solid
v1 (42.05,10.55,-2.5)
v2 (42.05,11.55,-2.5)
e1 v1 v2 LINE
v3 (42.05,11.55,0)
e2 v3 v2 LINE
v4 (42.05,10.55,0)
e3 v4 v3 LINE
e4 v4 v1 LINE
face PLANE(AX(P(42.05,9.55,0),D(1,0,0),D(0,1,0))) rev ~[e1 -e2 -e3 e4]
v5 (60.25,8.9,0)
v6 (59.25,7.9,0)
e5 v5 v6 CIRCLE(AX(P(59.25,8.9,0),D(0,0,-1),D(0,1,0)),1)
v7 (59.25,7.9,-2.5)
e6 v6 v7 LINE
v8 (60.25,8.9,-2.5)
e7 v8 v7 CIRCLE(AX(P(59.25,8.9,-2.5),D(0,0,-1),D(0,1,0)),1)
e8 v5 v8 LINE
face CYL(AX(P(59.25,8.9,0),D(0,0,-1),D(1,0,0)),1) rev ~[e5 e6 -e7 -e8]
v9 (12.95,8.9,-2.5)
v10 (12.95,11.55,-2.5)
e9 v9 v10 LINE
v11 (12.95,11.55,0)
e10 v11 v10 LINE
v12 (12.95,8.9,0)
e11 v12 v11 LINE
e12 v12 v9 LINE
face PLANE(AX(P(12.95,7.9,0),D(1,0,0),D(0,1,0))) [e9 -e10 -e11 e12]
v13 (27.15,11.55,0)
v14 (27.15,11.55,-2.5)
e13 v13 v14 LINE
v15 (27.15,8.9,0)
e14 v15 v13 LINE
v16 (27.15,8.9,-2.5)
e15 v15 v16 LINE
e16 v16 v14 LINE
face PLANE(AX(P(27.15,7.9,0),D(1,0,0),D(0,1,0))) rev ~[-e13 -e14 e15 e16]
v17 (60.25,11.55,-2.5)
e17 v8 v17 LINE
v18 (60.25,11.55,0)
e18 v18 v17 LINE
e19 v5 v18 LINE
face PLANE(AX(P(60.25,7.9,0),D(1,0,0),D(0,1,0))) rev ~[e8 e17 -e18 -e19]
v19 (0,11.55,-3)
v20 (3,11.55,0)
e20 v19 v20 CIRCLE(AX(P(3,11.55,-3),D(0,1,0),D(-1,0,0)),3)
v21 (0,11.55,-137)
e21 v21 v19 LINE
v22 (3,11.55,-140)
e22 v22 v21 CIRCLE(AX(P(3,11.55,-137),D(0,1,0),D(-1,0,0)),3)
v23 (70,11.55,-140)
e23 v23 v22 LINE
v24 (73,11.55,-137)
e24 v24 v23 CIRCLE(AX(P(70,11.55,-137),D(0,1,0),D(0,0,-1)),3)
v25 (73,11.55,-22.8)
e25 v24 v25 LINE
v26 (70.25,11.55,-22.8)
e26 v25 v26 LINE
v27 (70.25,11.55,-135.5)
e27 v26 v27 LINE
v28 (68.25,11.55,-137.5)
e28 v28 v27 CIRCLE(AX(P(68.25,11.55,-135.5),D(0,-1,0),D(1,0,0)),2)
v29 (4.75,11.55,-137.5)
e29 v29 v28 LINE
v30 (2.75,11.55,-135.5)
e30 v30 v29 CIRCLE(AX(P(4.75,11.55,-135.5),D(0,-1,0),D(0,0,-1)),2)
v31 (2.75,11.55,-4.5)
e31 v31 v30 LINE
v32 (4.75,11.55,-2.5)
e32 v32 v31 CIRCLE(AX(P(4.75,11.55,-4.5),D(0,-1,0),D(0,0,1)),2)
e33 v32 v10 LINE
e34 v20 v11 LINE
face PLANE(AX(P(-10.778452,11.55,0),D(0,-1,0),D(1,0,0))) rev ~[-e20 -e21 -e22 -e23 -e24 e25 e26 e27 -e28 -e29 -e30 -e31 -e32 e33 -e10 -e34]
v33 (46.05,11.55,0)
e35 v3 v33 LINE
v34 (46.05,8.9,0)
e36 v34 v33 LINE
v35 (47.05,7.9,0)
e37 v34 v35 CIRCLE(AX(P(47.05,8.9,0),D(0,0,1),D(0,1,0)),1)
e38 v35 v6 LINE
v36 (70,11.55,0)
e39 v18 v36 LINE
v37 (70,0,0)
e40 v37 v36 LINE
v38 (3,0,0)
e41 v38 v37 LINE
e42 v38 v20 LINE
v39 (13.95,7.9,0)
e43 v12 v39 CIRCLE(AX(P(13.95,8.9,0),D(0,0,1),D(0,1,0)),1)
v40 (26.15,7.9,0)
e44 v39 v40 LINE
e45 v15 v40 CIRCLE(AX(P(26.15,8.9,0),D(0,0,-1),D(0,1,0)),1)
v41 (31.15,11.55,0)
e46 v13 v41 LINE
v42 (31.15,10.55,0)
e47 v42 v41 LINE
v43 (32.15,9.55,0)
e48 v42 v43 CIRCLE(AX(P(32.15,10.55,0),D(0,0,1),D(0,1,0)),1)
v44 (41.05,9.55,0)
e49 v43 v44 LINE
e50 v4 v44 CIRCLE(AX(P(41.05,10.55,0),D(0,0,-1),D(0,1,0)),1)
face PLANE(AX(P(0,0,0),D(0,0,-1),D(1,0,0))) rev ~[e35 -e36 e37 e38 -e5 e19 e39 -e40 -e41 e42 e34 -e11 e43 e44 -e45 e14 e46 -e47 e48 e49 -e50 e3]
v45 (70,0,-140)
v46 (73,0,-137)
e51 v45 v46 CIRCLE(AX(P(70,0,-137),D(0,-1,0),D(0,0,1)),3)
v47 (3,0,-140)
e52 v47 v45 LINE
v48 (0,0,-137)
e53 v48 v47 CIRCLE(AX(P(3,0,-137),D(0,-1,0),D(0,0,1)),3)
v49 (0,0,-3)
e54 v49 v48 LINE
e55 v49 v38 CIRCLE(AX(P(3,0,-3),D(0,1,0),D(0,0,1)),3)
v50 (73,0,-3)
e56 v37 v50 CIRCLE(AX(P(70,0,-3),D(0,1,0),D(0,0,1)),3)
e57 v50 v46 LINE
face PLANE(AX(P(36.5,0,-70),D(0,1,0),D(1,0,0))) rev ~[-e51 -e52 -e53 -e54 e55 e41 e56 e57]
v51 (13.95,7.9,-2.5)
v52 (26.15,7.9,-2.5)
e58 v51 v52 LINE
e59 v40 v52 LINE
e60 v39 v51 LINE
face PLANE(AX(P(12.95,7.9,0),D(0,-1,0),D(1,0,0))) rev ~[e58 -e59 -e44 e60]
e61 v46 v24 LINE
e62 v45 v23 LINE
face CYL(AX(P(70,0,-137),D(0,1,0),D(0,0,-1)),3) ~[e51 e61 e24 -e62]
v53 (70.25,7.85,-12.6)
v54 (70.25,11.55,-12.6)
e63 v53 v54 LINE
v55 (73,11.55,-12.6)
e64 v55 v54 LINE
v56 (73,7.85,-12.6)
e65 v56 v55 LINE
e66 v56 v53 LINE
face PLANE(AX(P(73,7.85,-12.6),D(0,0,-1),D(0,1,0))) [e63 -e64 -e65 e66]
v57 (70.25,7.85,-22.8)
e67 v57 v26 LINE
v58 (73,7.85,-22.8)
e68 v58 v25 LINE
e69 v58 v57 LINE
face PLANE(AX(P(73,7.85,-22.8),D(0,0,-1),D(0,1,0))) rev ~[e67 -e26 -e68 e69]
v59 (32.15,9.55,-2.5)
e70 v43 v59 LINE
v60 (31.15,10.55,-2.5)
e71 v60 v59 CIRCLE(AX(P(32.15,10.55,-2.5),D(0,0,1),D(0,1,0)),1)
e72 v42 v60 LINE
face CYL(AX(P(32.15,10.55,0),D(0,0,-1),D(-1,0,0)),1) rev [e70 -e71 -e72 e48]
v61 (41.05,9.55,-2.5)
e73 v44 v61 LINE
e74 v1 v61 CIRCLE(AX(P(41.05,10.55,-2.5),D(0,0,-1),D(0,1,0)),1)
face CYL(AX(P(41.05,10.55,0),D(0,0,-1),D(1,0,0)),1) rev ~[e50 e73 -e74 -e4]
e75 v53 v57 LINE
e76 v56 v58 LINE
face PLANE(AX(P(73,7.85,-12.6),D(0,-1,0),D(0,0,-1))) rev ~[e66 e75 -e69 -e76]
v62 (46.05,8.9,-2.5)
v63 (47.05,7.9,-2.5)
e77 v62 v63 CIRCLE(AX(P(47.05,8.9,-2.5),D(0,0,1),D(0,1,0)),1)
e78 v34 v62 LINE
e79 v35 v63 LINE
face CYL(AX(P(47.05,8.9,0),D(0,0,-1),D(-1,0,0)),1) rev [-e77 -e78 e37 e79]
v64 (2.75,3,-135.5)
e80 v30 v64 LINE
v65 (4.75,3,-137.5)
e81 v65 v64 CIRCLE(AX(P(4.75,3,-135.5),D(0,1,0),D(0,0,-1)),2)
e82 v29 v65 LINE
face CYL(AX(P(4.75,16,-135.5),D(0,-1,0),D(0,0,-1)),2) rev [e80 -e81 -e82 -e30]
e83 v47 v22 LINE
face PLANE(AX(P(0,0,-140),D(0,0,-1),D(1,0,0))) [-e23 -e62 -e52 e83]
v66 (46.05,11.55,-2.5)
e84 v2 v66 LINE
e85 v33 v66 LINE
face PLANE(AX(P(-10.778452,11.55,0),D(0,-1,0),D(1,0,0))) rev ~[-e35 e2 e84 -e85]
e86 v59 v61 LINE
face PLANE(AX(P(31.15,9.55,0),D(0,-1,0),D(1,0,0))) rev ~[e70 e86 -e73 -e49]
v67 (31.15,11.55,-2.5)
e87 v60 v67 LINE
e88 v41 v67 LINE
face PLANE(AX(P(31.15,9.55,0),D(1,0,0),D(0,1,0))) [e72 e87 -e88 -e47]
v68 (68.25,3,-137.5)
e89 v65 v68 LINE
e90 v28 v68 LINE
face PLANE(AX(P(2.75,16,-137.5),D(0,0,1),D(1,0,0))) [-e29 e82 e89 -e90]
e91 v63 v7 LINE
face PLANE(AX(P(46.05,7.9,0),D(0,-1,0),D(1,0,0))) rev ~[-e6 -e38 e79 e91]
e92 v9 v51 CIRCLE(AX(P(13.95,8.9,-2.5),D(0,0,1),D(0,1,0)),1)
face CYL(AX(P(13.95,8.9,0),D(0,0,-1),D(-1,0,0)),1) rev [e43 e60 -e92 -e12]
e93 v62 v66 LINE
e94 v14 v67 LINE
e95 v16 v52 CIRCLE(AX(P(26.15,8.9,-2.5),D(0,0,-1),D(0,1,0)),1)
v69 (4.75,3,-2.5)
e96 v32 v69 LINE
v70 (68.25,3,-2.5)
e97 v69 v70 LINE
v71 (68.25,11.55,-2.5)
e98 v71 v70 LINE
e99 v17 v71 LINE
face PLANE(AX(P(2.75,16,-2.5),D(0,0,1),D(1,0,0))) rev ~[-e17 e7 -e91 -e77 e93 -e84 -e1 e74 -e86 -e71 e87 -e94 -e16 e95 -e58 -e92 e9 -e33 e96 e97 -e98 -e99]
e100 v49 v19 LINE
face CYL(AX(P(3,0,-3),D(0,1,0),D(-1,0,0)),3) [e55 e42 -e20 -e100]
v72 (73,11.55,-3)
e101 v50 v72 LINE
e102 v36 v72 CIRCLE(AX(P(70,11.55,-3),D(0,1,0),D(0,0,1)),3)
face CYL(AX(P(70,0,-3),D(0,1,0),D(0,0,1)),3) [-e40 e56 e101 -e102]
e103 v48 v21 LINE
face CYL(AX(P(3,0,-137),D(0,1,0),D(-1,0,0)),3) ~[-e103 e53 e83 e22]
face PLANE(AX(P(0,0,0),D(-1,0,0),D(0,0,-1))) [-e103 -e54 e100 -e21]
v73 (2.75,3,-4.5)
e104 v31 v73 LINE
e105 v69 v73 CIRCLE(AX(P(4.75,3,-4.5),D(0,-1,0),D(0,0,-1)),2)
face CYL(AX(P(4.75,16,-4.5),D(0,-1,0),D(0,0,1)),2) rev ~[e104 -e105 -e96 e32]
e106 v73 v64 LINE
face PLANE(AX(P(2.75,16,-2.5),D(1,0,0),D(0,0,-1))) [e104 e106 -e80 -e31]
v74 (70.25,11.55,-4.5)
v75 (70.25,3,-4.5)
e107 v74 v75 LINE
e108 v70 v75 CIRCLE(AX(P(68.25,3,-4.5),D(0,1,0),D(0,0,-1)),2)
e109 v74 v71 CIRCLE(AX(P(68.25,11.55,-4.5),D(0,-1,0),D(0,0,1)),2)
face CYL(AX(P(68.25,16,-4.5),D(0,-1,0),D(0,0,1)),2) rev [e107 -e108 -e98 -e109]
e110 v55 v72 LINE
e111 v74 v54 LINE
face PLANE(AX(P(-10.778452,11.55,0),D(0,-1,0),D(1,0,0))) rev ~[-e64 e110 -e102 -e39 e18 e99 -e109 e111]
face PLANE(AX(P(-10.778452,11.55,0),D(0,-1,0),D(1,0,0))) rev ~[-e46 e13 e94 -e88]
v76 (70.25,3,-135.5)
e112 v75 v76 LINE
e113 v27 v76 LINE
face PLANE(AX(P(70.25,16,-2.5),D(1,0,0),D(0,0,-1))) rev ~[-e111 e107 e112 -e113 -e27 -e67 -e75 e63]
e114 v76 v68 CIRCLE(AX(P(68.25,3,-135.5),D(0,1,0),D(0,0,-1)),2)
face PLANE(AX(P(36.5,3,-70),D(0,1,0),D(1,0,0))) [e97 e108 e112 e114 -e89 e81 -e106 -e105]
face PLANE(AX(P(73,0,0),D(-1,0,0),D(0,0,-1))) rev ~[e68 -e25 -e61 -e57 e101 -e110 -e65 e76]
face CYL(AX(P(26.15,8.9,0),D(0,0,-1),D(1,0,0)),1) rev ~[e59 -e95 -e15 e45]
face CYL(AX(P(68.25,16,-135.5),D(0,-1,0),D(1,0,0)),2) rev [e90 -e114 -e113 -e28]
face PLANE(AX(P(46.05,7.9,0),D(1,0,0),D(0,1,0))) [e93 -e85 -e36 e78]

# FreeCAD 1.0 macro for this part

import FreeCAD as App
import Part
import Sketcher


def edges_at(feature, points):
    """Names of the edges that pass closest to the given points."""
    edges = feature.Shape.Edges
    near = lambda p: min(range(len(edges)), key=lambda i: edges[i].distToShape(Part.Vertex(*p))[0])
    return sorted({f"Edge{near(p) + 1}" for p in points})

doc = App.newDocument("Part")
body = doc.addObject("PartDesign::Body", "Body")

# Sketch on XZ plane
sketch1 = doc.addObject("Sketcher::SketchObject", "Sketch")
body.addObject(sketch1)
sketch1.AttachmentSupport = (doc.XZ_Plane, [""])
sketch1.MapMode = "FlatFace"
sketch1.addGeometry(Part.LineSegment(App.Vector(0, -140, 0), App.Vector(0, 0, 0)), False)
sketch1.addGeometry(Part.LineSegment(App.Vector(0, 0, 0), App.Vector(73, 0, 0)), False)
sketch1.addGeometry(Part.LineSegment(App.Vector(73, 0, 0), App.Vector(73, -140, 0)), False)
sketch1.addGeometry(Part.LineSegment(App.Vector(73, -140, 0), App.Vector(0, -140, 0)), False)
sketch1.addConstraint(Sketcher.Constraint("Coincident", 0, 2, 1, 1))
sketch1.addConstraint(Sketcher.Constraint("Coincident", 1, 2, 2, 1))
sketch1.addConstraint(Sketcher.Constraint("Coincident", 2, 2, 3, 1))
sketch1.addConstraint(Sketcher.Constraint("Coincident", 3, 2, 0, 1))
sketch1.addConstraint(Sketcher.Constraint("Vertical", 0))
sketch1.addConstraint(Sketcher.Constraint("Horizontal", 1))
sketch1.addConstraint(Sketcher.Constraint("Vertical", 2))
sketch1.addConstraint(Sketcher.Constraint("Horizontal", 3))
sketch1.addConstraint(Sketcher.Constraint("Coincident", 0, 2, -1, 1))
sketch1.addConstraint(Sketcher.Constraint("DistanceX", 1, 1, 1, 2, 73.0))
sketch1.addConstraint(Sketcher.Constraint("DistanceY", 0, 1, 0, 2, 140.0))
pad1 = doc.addObject("PartDesign::Pad", "Pad")
body.addObject(pad1)
pad1.Profile = sketch1
pad1.Length = 16
pad1.Reversed = True

# Sketch on XZ plane
sketch2 = doc.addObject("Sketcher::SketchObject", "Sketch001")
body.addObject(sketch2)
sketch2.AttachmentSupport = (doc.XZ_Plane, [""])
sketch2.MapMode = "FlatFace"
sketch2.AttachmentOffset = App.Placement(App.Vector(0, 0, -16), App.Rotation())
sketch2.addGeometry(Part.LineSegment(App.Vector(3, -138, 0), App.Vector(3, -2, 0)), False)
sketch2.addGeometry(Part.LineSegment(App.Vector(3, -2, 0), App.Vector(70, -2, 0)), False)
sketch2.addGeometry(Part.LineSegment(App.Vector(70, -2, 0), App.Vector(70, -138, 0)), False)
sketch2.addGeometry(Part.LineSegment(App.Vector(70, -138, 0), App.Vector(3, -138, 0)), False)
sketch2.addConstraint(Sketcher.Constraint("Coincident", 0, 2, 1, 1))
sketch2.addConstraint(Sketcher.Constraint("Coincident", 1, 2, 2, 1))
sketch2.addConstraint(Sketcher.Constraint("Coincident", 2, 2, 3, 1))
sketch2.addConstraint(Sketcher.Constraint("Coincident", 3, 2, 0, 1))
sketch2.addConstraint(Sketcher.Constraint("Vertical", 0))
sketch2.addConstraint(Sketcher.Constraint("Horizontal", 1))
sketch2.addConstraint(Sketcher.Constraint("Vertical", 2))
sketch2.addConstraint(Sketcher.Constraint("Horizontal", 3))
sketch2.addConstraint(Sketcher.Constraint("DistanceY", 0, 1, 0, 2, 135.0))
sketch2.addConstraint(Sketcher.Constraint("DistanceX", 1, 1, 1, 2, 67.5))
sketch2.addConstraint(Sketcher.Constraint("DistanceY", 0, 2, -1, 1, 2.5))
sketch2.addConstraint(Sketcher.Constraint("DistanceX", -1, 1, 0, 2, 2.75))
pocket1 = doc.addObject("PartDesign::Pocket", "Pocket")
body.addObject(pocket1)
pocket1.Profile = sketch2
pocket1.Length = 13
pocket1.Reversed = True

# Sketch on XY plane
sketch3 = doc.addObject("Sketcher::SketchObject", "Sketch002")
body.addObject(sketch3)
sketch3.AttachmentSupport = (doc.XY_Plane, [""])
sketch3.MapMode = "FlatFace"
sketch3.addGeometry(Part.LineSegment(App.Vector(12.9, 14.3, 0), App.Vector(12.9, 7.9, 0)), False)
sketch3.addGeometry(Part.LineSegment(App.Vector(12.9, 7.9, 0), App.Vector(27.1, 7.9, 0)), False)
sketch3.addGeometry(Part.LineSegment(App.Vector(27.1, 7.9, 0), App.Vector(27.1, 14.3, 0)), False)
sketch3.addGeometry(Part.LineSegment(App.Vector(27.1, 14.3, 0), App.Vector(12.9, 14.3, 0)), False)
sketch3.addGeometry(Part.LineSegment(App.Vector(31.1, 14.3, 0), App.Vector(31.1, 9.6, 0)), False)
sketch3.addGeometry(Part.LineSegment(App.Vector(31.1, 9.6, 0), App.Vector(42, 9.6, 0)), False)
sketch3.addGeometry(Part.LineSegment(App.Vector(42, 9.6, 0), App.Vector(42, 14.3, 0)), False)
sketch3.addGeometry(Part.LineSegment(App.Vector(42, 14.3, 0), App.Vector(31.1, 14.3, 0)), False)
sketch3.addGeometry(Part.LineSegment(App.Vector(46, 14.3, 0), App.Vector(46, 7.9, 0)), False)
sketch3.addGeometry(Part.LineSegment(App.Vector(46, 7.9, 0), App.Vector(60.2, 7.9, 0)), False)
sketch3.addGeometry(Part.LineSegment(App.Vector(60.2, 7.9, 0), App.Vector(60.2, 14.3, 0)), False)
sketch3.addGeometry(Part.LineSegment(App.Vector(60.2, 14.3, 0), App.Vector(46, 14.3, 0)), False)
sketch3.addConstraint(Sketcher.Constraint("Coincident", 0, 2, 1, 1))
sketch3.addConstraint(Sketcher.Constraint("Coincident", 1, 2, 2, 1))
sketch3.addConstraint(Sketcher.Constraint("Coincident", 2, 2, 3, 1))
sketch3.addConstraint(Sketcher.Constraint("Coincident", 3, 2, 0, 1))
sketch3.addConstraint(Sketcher.Constraint("Coincident", 4, 2, 5, 1))
sketch3.addConstraint(Sketcher.Constraint("Coincident", 5, 2, 6, 1))
sketch3.addConstraint(Sketcher.Constraint("Coincident", 6, 2, 7, 1))
sketch3.addConstraint(Sketcher.Constraint("Coincident", 7, 2, 4, 1))
sketch3.addConstraint(Sketcher.Constraint("Coincident", 8, 2, 9, 1))
sketch3.addConstraint(Sketcher.Constraint("Coincident", 9, 2, 10, 1))
sketch3.addConstraint(Sketcher.Constraint("Coincident", 10, 2, 11, 1))
sketch3.addConstraint(Sketcher.Constraint("Coincident", 11, 2, 8, 1))
sketch3.addConstraint(Sketcher.Constraint("Vertical", 0))
sketch3.addConstraint(Sketcher.Constraint("Horizontal", 1))
sketch3.addConstraint(Sketcher.Constraint("Vertical", 2))
sketch3.addConstraint(Sketcher.Constraint("Horizontal", 3))
sketch3.addConstraint(Sketcher.Constraint("Vertical", 4))
sketch3.addConstraint(Sketcher.Constraint("Horizontal", 5))
sketch3.addConstraint(Sketcher.Constraint("Vertical", 6))
sketch3.addConstraint(Sketcher.Constraint("Horizontal", 7))
sketch3.addConstraint(Sketcher.Constraint("Vertical", 8))
sketch3.addConstraint(Sketcher.Constraint("Horizontal", 9))
sketch3.addConstraint(Sketcher.Constraint("Vertical", 10))
sketch3.addConstraint(Sketcher.Constraint("Horizontal", 11))
sketch3.addConstraint(Sketcher.Constraint("Horizontal", 3, 2, 6, 2))
sketch3.addConstraint(Sketcher.Constraint("Horizontal", 1, 2, 8, 2))
sketch3.addConstraint(Sketcher.Constraint("Horizontal", 7, 2, 10, 2))
sketch3.addConstraint(Sketcher.Constraint("Equal", 3, 9))
sketch3.addConstraint(Sketcher.Constraint("DistanceX", 1, 1, 1, 2, 14.2))
sketch3.addConstraint(Sketcher.Constraint("DistanceX", 5, 1, 5, 2, 10.9))
sketch3.addConstraint(Sketcher.Constraint("DistanceY", 4, 2, 4, 1, 4.8))
sketch3.addConstraint(Sketcher.Constraint("DistanceX", 1, 2, 4, 2, 4.0))
sketch3.addConstraint(Sketcher.Constraint("DistanceX", 5, 2, 8, 2, 4.0))
sketch3.addConstraint(Sketcher.Constraint("DistanceY", 0, 2, 0, 1, 6.45))
sketch3.addConstraint(Sketcher.Constraint("DistanceY", -1, 1, 0, 2, 7.9))
sketch3.addConstraint(Sketcher.Constraint("DistanceX", -1, 1, 0, 2, 12.95))
pocket2 = doc.addObject("PartDesign::Pocket", "Pocket001")
body.addObject(pocket2)
pocket2.Profile = sketch3
pocket2.Length = 2.5
doc.recompute()

fillet = doc.addObject("PartDesign::Fillet", "Fillet")
body.addObject(fillet)
fillet.Base = (pocket2, edges_at(pocket2, [
    (0, 8, -140),
    (73, 8, -140),
    (73, 8, 0),
    (0, 8, 0),
]))
fillet.Radius = 3

# Sketch on YZ plane
sketch4 = doc.addObject("Sketcher::SketchObject", "Sketch003")
body.addObject(sketch4)
sketch4.AttachmentSupport = (doc.YZ_Plane, [""])
sketch4.MapMode = "FlatFace"
sketch4.AttachmentOffset = App.Placement(App.Vector(0, 0, 73), App.Rotation())
sketch4.addGeometry(Part.LineSegment(App.Vector(13, -13, 0), App.Vector(8, -13, 0)), False)
sketch4.addGeometry(Part.LineSegment(App.Vector(8, -13, 0), App.Vector(8, -23, 0)), False)
sketch4.addGeometry(Part.LineSegment(App.Vector(8, -23, 0), App.Vector(13, -23, 0)), False)
sketch4.addGeometry(Part.LineSegment(App.Vector(13, -23, 0), App.Vector(13, -13, 0)), False)
sketch4.addConstraint(Sketcher.Constraint("Coincident", 0, 2, 1, 1))
sketch4.addConstraint(Sketcher.Constraint("Coincident", 1, 2, 2, 1))
sketch4.addConstraint(Sketcher.Constraint("Coincident", 2, 2, 3, 1))
sketch4.addConstraint(Sketcher.Constraint("Coincident", 3, 2, 0, 1))
sketch4.addConstraint(Sketcher.Constraint("Horizontal", 0))
sketch4.addConstraint(Sketcher.Constraint("Vertical", 1))
sketch4.addConstraint(Sketcher.Constraint("Horizontal", 2))
sketch4.addConstraint(Sketcher.Constraint("Vertical", 3))
sketch4.addConstraint(Sketcher.Constraint("DistanceX", 0, 2, 0, 1, 5.5))
sketch4.addConstraint(Sketcher.Constraint("DistanceY", 1, 2, 1, 1, 10.2))
sketch4.addConstraint(Sketcher.Constraint("DistanceY", 0, 2, -1, 1, 12.6))
sketch4.addConstraint(Sketcher.Constraint("DistanceX", -1, 1, 0, 2, 7.85))
pocket3 = doc.addObject("PartDesign::Pocket", "Pocket002")
body.addObject(pocket3)
pocket3.Profile = sketch4
pocket3.Length = 2.75
doc.recompute()

fillet2 = doc.addObject("PartDesign::Fillet", "Fillet001")
body.addObject(fillet2)
fillet2.Base = (pocket3, edges_at(pocket3, [
    (27.15, 14.35, -1.25),
    (27.15, 7.9, -1.25),
    (12.95, 7.9, -1.25),
    (12.95, 14.35, -1.25),
    (31.15, 9.55, -1.25),
    (31.15, 14.35, -1.25),
    (42.05, 14.35, -1.25),
    (42.05, 9.55, -1.25),
    (60.25, 7.9, -1.25),
    (46.05, 7.9, -1.25),
    (46.05, 14.35, -1.25),
    (60.25, 14.35, -1.25),
]))
fillet2.Radius = 1
doc.recompute()

fillet3 = doc.addObject("PartDesign::Fillet", "Fillet002")
body.addObject(fillet3)
fillet3.Base = (fillet2, edges_at(fillet2, [
    (0, 16, -70),
    (36.5, 16, -140),
    (36.5, 16, 0),
    (73, 16, -70),
    (0.879, 16, -0.879),
    (72.121, 16, -0.879),
    (72.121, 16, -139.121),
    (0.879, 16, -139.121),
]))
fillet3.Radius = 1
doc.recompute()

fillet4 = doc.addObject("PartDesign::Fillet", "Fillet003")
body.addObject(fillet4)
fillet4.Base = (fillet3, edges_at(fillet3, [
    (2.75, 9.5, -2.5),
    (2.75, 9.5, -137.5),
    (70.25, 9.5, -137.5),
    (70.25, 9.5, -2.5),
]))
fillet4.Radius = 2
doc.recompute()

chamfer = doc.addObject("PartDesign::Chamfer", "Chamfer")
body.addObject(chamfer)
chamfer.Base = (fillet4, edges_at(fillet4, [
    (70.25, 16, -70),
    (36.5, 16, -2.5),
    (36.5, 16, -137.5),
    (2.75, 16, -70),
    (69.664, 16, -3.086),
    (69.664, 16, -136.914),
    (3.336, 16, -136.914),
    (3.336, 16, -3.086),
]))
chamfer.Size = 1

# Sketch on XY plane
sketch5 = doc.addObject("Sketcher::SketchObject", "Sketch004")
body.addObject(sketch5)
sketch5.AttachmentSupport = (doc.XY_Plane, [""])
sketch5.MapMode = "FlatFace"
sketch5.addGeometry(Part.LineSegment(App.Vector(-11, 30, 0), App.Vector(-11, 12, 0)), False)
sketch5.addGeometry(Part.LineSegment(App.Vector(-11, 12, 0), App.Vector(81, 12, 0)), False)
sketch5.addGeometry(Part.LineSegment(App.Vector(81, 12, 0), App.Vector(81, 30, 0)), False)
sketch5.addGeometry(Part.LineSegment(App.Vector(81, 30, 0), App.Vector(-11, 30, 0)), False)
sketch5.addConstraint(Sketcher.Constraint("Coincident", 0, 2, 1, 1))
sketch5.addConstraint(Sketcher.Constraint("Coincident", 1, 2, 2, 1))
sketch5.addConstraint(Sketcher.Constraint("Coincident", 2, 2, 3, 1))
sketch5.addConstraint(Sketcher.Constraint("Coincident", 3, 2, 0, 1))
sketch5.addConstraint(Sketcher.Constraint("Vertical", 0))
sketch5.addConstraint(Sketcher.Constraint("Horizontal", 1))
sketch5.addConstraint(Sketcher.Constraint("Vertical", 2))
sketch5.addConstraint(Sketcher.Constraint("Horizontal", 3))
sketch5.addConstraint(Sketcher.Constraint("DistanceY", -1, 1, 0, 2, 11.55))
sketch5.addConstraint(Sketcher.Constraint("DistanceY", 0, 2, 0, 1, 18.565249))
sketch5.addConstraint(Sketcher.Constraint("DistanceX", 1, 1, 1, 2, 92.196915))
sketch5.addConstraint(Sketcher.Constraint("DistanceX", 0, 2, -1, 1, 10.778452))
pocket4 = doc.addObject("PartDesign::Pocket", "Pocket003")
body.addObject(pocket4)
pocket4.Profile = sketch5
pocket4.Type = "ThroughAll"

doc.recompute()
